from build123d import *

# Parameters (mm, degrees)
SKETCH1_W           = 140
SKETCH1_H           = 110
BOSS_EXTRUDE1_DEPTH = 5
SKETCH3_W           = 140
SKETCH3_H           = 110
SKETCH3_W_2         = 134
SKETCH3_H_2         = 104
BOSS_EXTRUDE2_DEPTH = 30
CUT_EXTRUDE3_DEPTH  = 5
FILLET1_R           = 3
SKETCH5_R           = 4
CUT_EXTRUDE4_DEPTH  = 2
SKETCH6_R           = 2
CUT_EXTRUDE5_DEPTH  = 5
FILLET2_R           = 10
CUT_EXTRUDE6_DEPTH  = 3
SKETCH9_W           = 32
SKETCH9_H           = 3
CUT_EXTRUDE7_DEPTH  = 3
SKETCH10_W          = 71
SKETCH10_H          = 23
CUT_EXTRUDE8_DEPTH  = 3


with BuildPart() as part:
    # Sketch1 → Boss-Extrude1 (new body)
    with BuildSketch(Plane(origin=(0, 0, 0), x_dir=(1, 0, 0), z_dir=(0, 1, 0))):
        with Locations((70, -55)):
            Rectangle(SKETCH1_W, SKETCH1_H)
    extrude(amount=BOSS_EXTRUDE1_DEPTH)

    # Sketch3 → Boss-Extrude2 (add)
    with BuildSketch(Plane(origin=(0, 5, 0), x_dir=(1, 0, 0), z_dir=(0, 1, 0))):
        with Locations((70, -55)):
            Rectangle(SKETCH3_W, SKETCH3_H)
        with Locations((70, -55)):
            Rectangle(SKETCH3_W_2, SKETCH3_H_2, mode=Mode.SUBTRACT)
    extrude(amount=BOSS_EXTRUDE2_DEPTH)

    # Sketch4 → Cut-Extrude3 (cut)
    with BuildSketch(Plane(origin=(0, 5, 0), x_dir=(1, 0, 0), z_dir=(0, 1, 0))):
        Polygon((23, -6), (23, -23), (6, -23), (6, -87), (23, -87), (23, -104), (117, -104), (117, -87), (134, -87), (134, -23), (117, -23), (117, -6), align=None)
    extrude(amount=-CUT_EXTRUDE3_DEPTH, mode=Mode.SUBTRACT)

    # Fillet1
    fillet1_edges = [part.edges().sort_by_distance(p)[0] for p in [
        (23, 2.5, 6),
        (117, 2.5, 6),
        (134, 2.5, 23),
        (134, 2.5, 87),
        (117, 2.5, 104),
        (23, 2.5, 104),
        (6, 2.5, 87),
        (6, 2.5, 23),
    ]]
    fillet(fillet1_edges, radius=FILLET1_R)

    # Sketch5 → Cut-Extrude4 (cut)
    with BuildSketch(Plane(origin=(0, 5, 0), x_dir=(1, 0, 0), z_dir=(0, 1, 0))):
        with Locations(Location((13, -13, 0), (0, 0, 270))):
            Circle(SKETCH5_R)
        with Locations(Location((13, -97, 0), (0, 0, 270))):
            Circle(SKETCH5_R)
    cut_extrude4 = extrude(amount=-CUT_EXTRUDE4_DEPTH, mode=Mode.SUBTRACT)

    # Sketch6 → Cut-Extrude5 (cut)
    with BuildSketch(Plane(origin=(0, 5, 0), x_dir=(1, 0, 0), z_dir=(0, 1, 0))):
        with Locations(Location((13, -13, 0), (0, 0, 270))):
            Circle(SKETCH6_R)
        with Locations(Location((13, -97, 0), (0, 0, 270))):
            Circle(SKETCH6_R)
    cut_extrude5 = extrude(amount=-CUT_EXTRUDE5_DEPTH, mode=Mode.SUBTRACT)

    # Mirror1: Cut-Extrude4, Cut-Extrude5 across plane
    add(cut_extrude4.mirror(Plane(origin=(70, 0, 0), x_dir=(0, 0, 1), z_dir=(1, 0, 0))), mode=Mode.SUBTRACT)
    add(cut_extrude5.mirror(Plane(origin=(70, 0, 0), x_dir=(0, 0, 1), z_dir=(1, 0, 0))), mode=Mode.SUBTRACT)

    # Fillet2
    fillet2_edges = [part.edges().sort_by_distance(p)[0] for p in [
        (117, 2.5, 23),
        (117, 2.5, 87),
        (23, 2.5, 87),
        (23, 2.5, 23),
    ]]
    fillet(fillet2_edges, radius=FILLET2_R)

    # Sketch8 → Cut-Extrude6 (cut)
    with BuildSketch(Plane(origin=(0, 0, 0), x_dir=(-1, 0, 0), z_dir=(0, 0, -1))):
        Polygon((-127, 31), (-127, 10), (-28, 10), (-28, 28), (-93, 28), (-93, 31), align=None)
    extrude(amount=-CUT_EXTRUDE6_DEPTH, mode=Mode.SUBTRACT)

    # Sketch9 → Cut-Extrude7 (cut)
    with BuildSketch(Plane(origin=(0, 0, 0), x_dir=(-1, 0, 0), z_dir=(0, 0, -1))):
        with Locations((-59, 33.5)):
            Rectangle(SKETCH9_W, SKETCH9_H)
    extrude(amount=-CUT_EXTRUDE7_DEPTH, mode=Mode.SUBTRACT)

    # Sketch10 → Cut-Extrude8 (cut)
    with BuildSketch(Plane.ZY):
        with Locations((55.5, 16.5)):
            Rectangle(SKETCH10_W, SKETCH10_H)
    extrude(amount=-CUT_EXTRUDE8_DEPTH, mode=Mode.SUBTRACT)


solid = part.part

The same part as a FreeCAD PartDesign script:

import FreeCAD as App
import Part
import Sketcher
from FreeCAD import Vector


def edges_at(feature, points):
    """Names of the edges that pass closest to the given points."""
    edges = feature.Shape.Edges
    near = lambda p: min(range(len(edges)), key=lambda i: edges[i].distToShape(Part.Vertex(*p))[0])
    return sorted({f"Edge{near(p) + 1}" for p in points})

doc = App.newDocument("Part")
body = doc.addObject("PartDesign::Body", "Body")

# Sketch on XZ plane
sketch1 = body.newObject("Sketcher::SketchObject", "Sketch")
sketch1.AttachmentSupport = (doc.getObject("XZ_Plane"), [""])
sketch1.MapMode = "FlatFace"
sketch1.addGeometry([
    Part.LineSegment(Vector(0, 0, 0), Vector(0, 110, 0)),
    Part.LineSegment(Vector(0, 110, 0), Vector(140, 110, 0)),
    Part.LineSegment(Vector(140, 110, 0), Vector(140, 0, 0)),
    Part.LineSegment(Vector(140, 0, 0), Vector(0, 0, 0)),
], False)
sketch1.addConstraint([
    Sketcher.Constraint("Coincident", 0, 2, 1, 1),
    Sketcher.Constraint("Coincident", 1, 2, 2, 1),
    Sketcher.Constraint("Coincident", 2, 2, 3, 1),
    Sketcher.Constraint("Coincident", 3, 2, 0, 1),
    Sketcher.Constraint("Vertical", 0),
    Sketcher.Constraint("Horizontal", 1),
    Sketcher.Constraint("Vertical", 2),
    Sketcher.Constraint("Horizontal", 3),
    Sketcher.Constraint("Coincident", 3, 2, -1, 1),
    Sketcher.Constraint("DistanceX", 1, 1, 1, 2, 140.0),
    Sketcher.Constraint("DistanceY", 0, 1, 0, 2, 110.0),
])
pad1 = body.newObject("PartDesign::Pad", "Pad")
pad1.Profile = sketch1
pad1.Length = 5
pad1.Reversed = True

# Sketch on XZ plane
sketch2 = body.newObject("Sketcher::SketchObject", "Sketch001")
sketch2.AttachmentSupport = (doc.getObject("XZ_Plane"), [""])
sketch2.MapMode = "FlatFace"
sketch2.AttachmentOffset = App.Placement(Vector(0, 0, -5), App.Rotation())
sketch2.addGeometry([
    Part.LineSegment(Vector(0, 0, 0), Vector(0, 110, 0)),  # 0
    Part.LineSegment(Vector(0, 110, 0), Vector(140, 110, 0)),  # 1
    Part.LineSegment(Vector(140, 110, 0), Vector(140, 0, 0)),  # 2
    Part.LineSegment(Vector(140, 0, 0), Vector(0, 0, 0)),  # 3
    Part.LineSegment(Vector(137, 107, 0), Vector(3, 107, 0)),  # 4
    Part.LineSegment(Vector(3, 107, 0), Vector(3, 3, 0)),  # 5
    Part.LineSegment(Vector(3, 3, 0), Vector(137, 3, 0)),  # 6
    Part.LineSegment(Vector(137, 3, 0), Vector(137, 107, 0)),  # 7
], False)
sketch2.addConstraint([
    Sketcher.Constraint("Coincident", 0, 2, 1, 1),
    Sketcher.Constraint("Coincident", 1, 2, 2, 1),
    Sketcher.Constraint("Coincident", 2, 2, 3, 1),
    Sketcher.Constraint("Coincident", 3, 2, 0, 1),
    Sketcher.Constraint("Coincident", 4, 2, 5, 1),
    Sketcher.Constraint("Coincident", 5, 2, 6, 1),
    Sketcher.Constraint("Coincident", 6, 2, 7, 1),
    Sketcher.Constraint("Coincident", 7, 2, 4, 1),
    Sketcher.Constraint("Vertical", 0),
    Sketcher.Constraint("Horizontal", 1),
    Sketcher.Constraint("Vertical", 2),
    Sketcher.Constraint("Horizontal", 3),
    Sketcher.Constraint("Horizontal", 4),
    Sketcher.Constraint("Vertical", 5),
    Sketcher.Constraint("Horizontal", 6),
    Sketcher.Constraint("Vertical", 7),
    Sketcher.Constraint("Coincident", 3, 2, -1, 1),
    Sketcher.Constraint("DistanceX", 1, 1, 1, 2, 140.0),
    Sketcher.Constraint("DistanceX", 4, 2, 4, 1, 134.0),
    Sketcher.Constraint("DistanceY", 0, 1, 0, 2, 110.0),
    Sketcher.Constraint("DistanceY", 5, 2, 5, 1, 104.0),
    Sketcher.Constraint("DistanceX", -1, 1, 4, 2, 3.0),
    Sketcher.Constraint("DistanceY", -1, 1, 4, 2, 107.0),
])
pad2 = body.newObject("PartDesign::Pad", "Pad001")
pad2.Profile = sketch2
pad2.Length = 30
pad2.Reversed = True

# Sketch on XZ plane
sketch3 = body.newObject("Sketcher::SketchObject", "Sketch002")
sketch3.AttachmentSupport = (doc.getObject("XZ_Plane"), [""])
sketch3.MapMode = "FlatFace"
sketch3.AttachmentOffset = App.Placement(Vector(0, 0, -5), App.Rotation())
sketch3.addGeometry([
    Part.LineSegment(Vector(23, 6, 0), Vector(23, 23, 0)),  # 0
    Part.LineSegment(Vector(23, 23, 0), Vector(6, 23, 0)),  # 1
    Part.LineSegment(Vector(6, 23, 0), Vector(6, 87, 0)),  # 2
    Part.LineSegment(Vector(6, 87, 0), Vector(23, 87, 0)),  # 3
    Part.LineSegment(Vector(23, 87, 0), Vector(23, 104, 0)),  # 4
    Part.LineSegment(Vector(23, 104, 0), Vector(117, 104, 0)),  # 5
    Part.LineSegment(Vector(117, 104, 0), Vector(117, 87, 0)),  # 6
    Part.LineSegment(Vector(117, 87, 0), Vector(134, 87, 0)),  # 7
    Part.LineSegment(Vector(134, 87, 0), Vector(134, 23, 0)),  # 8
    Part.LineSegment(Vector(134, 23, 0), Vector(117, 23, 0)),  # 9
    Part.LineSegment(Vector(117, 23, 0), Vector(117, 6, 0)),  # 10
    Part.LineSegment(Vector(117, 6, 0), Vector(23, 6, 0)),  # 11
], False)
sketch3.addConstraint([
    Sketcher.Constraint("Coincident", 0, 2, 1, 1),
    Sketcher.Constraint("Coincident", 1, 2, 2, 1),
    Sketcher.Constraint("Coincident", 2, 2, 3, 1),
    Sketcher.Constraint("Coincident", 3, 2, 4, 1),
    Sketcher.Constraint("Coincident", 4, 2, 5, 1),
    Sketcher.Constraint("Coincident", 5, 2, 6, 1),
    Sketcher.Constraint("Coincident", 6, 2, 7, 1),
    Sketcher.Constraint("Coincident", 7, 2, 8, 1),
    Sketcher.Constraint("Coincident", 8, 2, 9, 1),
    Sketcher.Constraint("Coincident", 9, 2, 10, 1),
    Sketcher.Constraint("Coincident", 10, 2, 11, 1),
    Sketcher.Constraint("Coincident", 11, 2, 0, 1),
    Sketcher.Constraint("Vertical", 0),
    Sketcher.Constraint("Horizontal", 1),
    Sketcher.Constraint("Vertical", 2),
    Sketcher.Constraint("Horizontal", 3),
    Sketcher.Constraint("Vertical", 4),
    Sketcher.Constraint("Horizontal", 5),
    Sketcher.Constraint("Vertical", 6),
    Sketcher.Constraint("Horizontal", 7),
    Sketcher.Constraint("Vertical", 8),
    Sketcher.Constraint("Horizontal", 9),
    Sketcher.Constraint("Vertical", 10),
    Sketcher.Constraint("Horizontal", 11),
    Sketcher.Constraint("Horizontal", 3, 2, 6, 2),
    Sketcher.Constraint("Horizontal", 1, 2, 8, 2),
    Sketcher.Constraint("Vertical", 0, 2, 3, 2),
    Sketcher.Constraint("Vertical", 6, 2, 9, 2),
    Sketcher.Constraint("Equal", 3, 7),
    Sketcher.Constraint("Equal", 9, 0),
    Sketcher.Constraint("Equal", 0, 4),
    Sketcher.Constraint("DistanceX", 1, 2, 1, 1, 17.0),
    Sketcher.Constraint("DistanceX", 5, 1, 5, 2, 94.0),
    Sketcher.Constraint("DistanceY", 2, 1, 2, 2, 64.0),
    Sketcher.Constraint("DistanceX", -1, 1, 0, 2, 23.0),
    Sketcher.Constraint("DistanceY", -1, 1, 0, 2, 23.0),
])
pocket1 = body.newObject("PartDesign::Pocket", "Pocket")
pocket1.Profile = sketch3
pocket1.Length = 5
pocket1.Reversed = True
doc.recompute()

fillet = body.newObject("PartDesign::Fillet", "Fillet")
fillet.Base = (pocket1, edges_at(pocket1, [
    (23, 2.5, 6),
    (117, 2.5, 6),
    (134, 2.5, 23),
    (134, 2.5, 87),
    (117, 2.5, 104),
    (23, 2.5, 104),
    (6, 2.5, 87),
    (6, 2.5, 23),
]))
fillet.Radius = 3

# Sketch on XZ plane
sketch4 = body.newObject("Sketcher::SketchObject", "Sketch003")
sketch4.AttachmentSupport = (doc.getObject("XZ_Plane"), [""])
sketch4.MapMode = "FlatFace"
sketch4.AttachmentOffset = App.Placement(Vector(0, 0, -5), App.Rotation())
sketch4.addGeometry([
    Part.Circle(Vector(13, 13, 0), Vector(0, 0, 1), 4),
    Part.Circle(Vector(13, 97, 0), Vector(0, 0, 1), 4),
], False)
sketch4.addConstraint([
    Sketcher.Constraint("Equal", 0, 1),
    Sketcher.Constraint("Vertical", 0, 3, 1, 3),
    Sketcher.Constraint("Diameter", 0, 8.0),
    Sketcher.Constraint("DistanceX", -1, 1, 0, 3, 13.0),
    Sketcher.Constraint("DistanceY", -1, 1, 0, 3, 13.0),
    Sketcher.Constraint("DistanceY", -1, 1, 1, 3, 97.0),
])
pocket2 = body.newObject("PartDesign::Pocket", "Pocket001")
pocket2.Profile = sketch4
pocket2.Length = 2
pocket2.Reversed = True

# Sketch on XZ plane
sketch5 = body.newObject("Sketcher::SketchObject", "Sketch004")
sketch5.AttachmentSupport = (doc.getObject("XZ_Plane"), [""])
sketch5.MapMode = "FlatFace"
sketch5.AttachmentOffset = App.Placement(Vector(0, 0, -5), App.Rotation())
sketch5.addGeometry([
    Part.Circle(Vector(13, 13, 0), Vector(0, 0, 1), 2),
    Part.Circle(Vector(13, 97, 0), Vector(0, 0, 1), 2),
], False)
sketch5.addConstraint([
    Sketcher.Constraint("Equal", 0, 1),
    Sketcher.Constraint("Vertical", 0, 3, 1, 3),
    Sketcher.Constraint("Diameter", 0, 4.0),
    Sketcher.Constraint("DistanceX", -1, 1, 0, 3, 13.0),
    Sketcher.Constraint("DistanceY", -1, 1, 0, 3, 13.0),
    Sketcher.Constraint("DistanceY", -1, 1, 1, 3, 97.0),
])
pocket3 = body.newObject("PartDesign::Pocket", "Pocket002")
pocket3.Profile = sketch5
pocket3.Length = 5
pocket3.Reversed = True
doc.recompute()

datumplane = body.newObject("PartDesign::Plane", "DatumPlane")
datumplane.AttachmentSupport = (doc.getObject("YZ_Plane"), [""])
datumplane.MapMode = "FlatFace"
datumplane.AttachmentOffset = App.Placement(Vector(0, 0, 70), App.Rotation())
mirrored = body.newObject("PartDesign::Mirrored", "Mirrored")
mirrored.Originals = [pocket2, pocket3]
mirrored.MirrorPlane = (datumplane, [""])
body.Tip = mirrored
doc.recompute()

fillet2 = body.newObject("PartDesign::Fillet", "Fillet001")
fillet2.Base = (mirrored, edges_at(mirrored, [
    (117, 2.5, 23),
    (117, 2.5, 87),
    (23, 2.5, 87),
    (23, 2.5, 23),
]))
fillet2.Radius = 10

# Sketch on XY plane
sketch6 = body.newObject("Sketcher::SketchObject", "Sketch005")
sketch6.AttachmentSupport = (doc.getObject("XY_Plane"), [""])
sketch6.MapMode = "FlatFace"
sketch6.addGeometry([
    Part.LineSegment(Vector(127, 31, 0), Vector(127, 10, 0)),  # 0
    Part.LineSegment(Vector(127, 10, 0), Vector(28, 10, 0)),  # 1
    Part.LineSegment(Vector(28, 10, 0), Vector(28, 28, 0)),  # 2
    Part.LineSegment(Vector(28, 28, 0), Vector(93, 28, 0)),  # 3
    Part.LineSegment(Vector(93, 28, 0), Vector(93, 31, 0)),  # 4
    Part.LineSegment(Vector(93, 31, 0), Vector(127, 31, 0)),  # 5
], False)
sketch6.addConstraint([
    Sketcher.Constraint("Coincident", 0, 2, 1, 1),
    Sketcher.Constraint("Coincident", 1, 2, 2, 1),
    Sketcher.Constraint("Coincident", 2, 2, 3, 1),
    Sketcher.Constraint("Coincident", 3, 2, 4, 1),
    Sketcher.Constraint("Coincident", 4, 2, 5, 1),
    Sketcher.Constraint("Coincident", 5, 2, 0, 1),
    Sketcher.Constraint("Vertical", 0),
    Sketcher.Constraint("Horizontal", 1),
    Sketcher.Constraint("Vertical", 2),
    Sketcher.Constraint("Horizontal", 3),
    Sketcher.Constraint("Vertical", 4),
    Sketcher.Constraint("Horizontal", 5),
    Sketcher.Constraint("DistanceX", 1, 2, 1, 1, 99.0),
    Sketcher.Constraint("DistanceX", 3, 1, 3, 2, 65.0),
    Sketcher.Constraint("DistanceY", 0, 2, 0, 1, 21.0),
    Sketcher.Constraint("DistanceY", 2, 1, 2, 2, 18.0),
    Sketcher.Constraint("DistanceX", -1, 1, 0, 2, 127.0),
    Sketcher.Constraint("DistanceY", -1, 1, 0, 2, 10.0),
])
pocket4 = body.newObject("PartDesign::Pocket", "Pocket003")
pocket4.Profile = sketch6
pocket4.Length = 3
pocket4.Reversed = True

# Sketch on XY plane
sketch7 = body.newObject("Sketcher::SketchObject", "Sketch006")
sketch7.AttachmentSupport = (doc.getObject("XY_Plane"), [""])
sketch7.MapMode = "FlatFace"
sketch7.addGeometry([
    Part.LineSegment(Vector(75, 35, 0), Vector(75, 32, 0)),
    Part.LineSegment(Vector(75, 32, 0), Vector(43, 32, 0)),
    Part.LineSegment(Vector(43, 32, 0), Vector(43, 35, 0)),
    Part.LineSegment(Vector(43, 35, 0), Vector(75, 35, 0)),
], False)
sketch7.addConstraint([
    Sketcher.Constraint("Coincident", 0, 2, 1, 1),
    Sketcher.Constraint("Coincident", 1, 2, 2, 1),
    Sketcher.Constraint("Coincident", 2, 2, 3, 1),
    Sketcher.Constraint("Coincident", 3, 2, 0, 1),
    Sketcher.Constraint("Vertical", 0),
    Sketcher.Constraint("Horizontal", 1),
    Sketcher.Constraint("Vertical", 2),
    Sketcher.Constraint("Horizontal", 3),
    Sketcher.Constraint("DistanceX", 1, 2, 1, 1, 32.0),
    Sketcher.Constraint("DistanceY", 0, 2, 0, 1, 3.0),
    Sketcher.Constraint("DistanceX", -1, 1, 0, 2, 75.0),
    Sketcher.Constraint("DistanceY", -1, 1, 0, 2, 32.0),
])
pocket5 = body.newObject("PartDesign::Pocket", "Pocket004")
pocket5.Profile = sketch7
pocket5.Length = 3
pocket5.Reversed = True

# Sketch on YZ plane
sketch8 = body.newObject("Sketcher::SketchObject", "Sketch007")
sketch8.AttachmentSupport = (doc.getObject("YZ_Plane"), [""])
sketch8.MapMode = "FlatFace"
sketch8.addGeometry([
    Part.LineSegment(Vector(28, 20, 0), Vector(5, 20, 0)),
    Part.LineSegment(Vector(5, 20, 0), Vector(5, 91, 0)),
    Part.LineSegment(Vector(5, 91, 0), Vector(28, 91, 0)),
    Part.LineSegment(Vector(28, 91, 0), Vector(28, 20, 0)),
], False)
sketch8.addConstraint([
    Sketcher.Constraint("Coincident", 0, 2, 1, 1),
    Sketcher.Constraint("Coincident", 1, 2, 2, 1),
    Sketcher.Constraint("Coincident", 2, 2, 3, 1),
    Sketcher.Constraint("Coincident", 3, 2, 0, 1),
    Sketcher.Constraint("Horizontal", 0),
    Sketcher.Constraint("Vertical", 1),
    Sketcher.Constraint("Horizontal", 2),
    Sketcher.Constraint("Vertical", 3),
    Sketcher.Constraint("DistanceX", 0, 2, 0, 1, 23.0),
    Sketcher.Constraint("DistanceY", 1, 1, 1, 2, 71.0),
    Sketcher.Constraint("DistanceX", -1, 1, 0, 2, 5.0),
    Sketcher.Constraint("DistanceY", -1, 1, 0, 2, 20.0),
])
pocket6 = body.newObject("PartDesign::Pocket", "Pocket005")
pocket6.Profile = sketch8
pocket6.Length = 3
pocket6.Reversed = True

doc.recompute()
